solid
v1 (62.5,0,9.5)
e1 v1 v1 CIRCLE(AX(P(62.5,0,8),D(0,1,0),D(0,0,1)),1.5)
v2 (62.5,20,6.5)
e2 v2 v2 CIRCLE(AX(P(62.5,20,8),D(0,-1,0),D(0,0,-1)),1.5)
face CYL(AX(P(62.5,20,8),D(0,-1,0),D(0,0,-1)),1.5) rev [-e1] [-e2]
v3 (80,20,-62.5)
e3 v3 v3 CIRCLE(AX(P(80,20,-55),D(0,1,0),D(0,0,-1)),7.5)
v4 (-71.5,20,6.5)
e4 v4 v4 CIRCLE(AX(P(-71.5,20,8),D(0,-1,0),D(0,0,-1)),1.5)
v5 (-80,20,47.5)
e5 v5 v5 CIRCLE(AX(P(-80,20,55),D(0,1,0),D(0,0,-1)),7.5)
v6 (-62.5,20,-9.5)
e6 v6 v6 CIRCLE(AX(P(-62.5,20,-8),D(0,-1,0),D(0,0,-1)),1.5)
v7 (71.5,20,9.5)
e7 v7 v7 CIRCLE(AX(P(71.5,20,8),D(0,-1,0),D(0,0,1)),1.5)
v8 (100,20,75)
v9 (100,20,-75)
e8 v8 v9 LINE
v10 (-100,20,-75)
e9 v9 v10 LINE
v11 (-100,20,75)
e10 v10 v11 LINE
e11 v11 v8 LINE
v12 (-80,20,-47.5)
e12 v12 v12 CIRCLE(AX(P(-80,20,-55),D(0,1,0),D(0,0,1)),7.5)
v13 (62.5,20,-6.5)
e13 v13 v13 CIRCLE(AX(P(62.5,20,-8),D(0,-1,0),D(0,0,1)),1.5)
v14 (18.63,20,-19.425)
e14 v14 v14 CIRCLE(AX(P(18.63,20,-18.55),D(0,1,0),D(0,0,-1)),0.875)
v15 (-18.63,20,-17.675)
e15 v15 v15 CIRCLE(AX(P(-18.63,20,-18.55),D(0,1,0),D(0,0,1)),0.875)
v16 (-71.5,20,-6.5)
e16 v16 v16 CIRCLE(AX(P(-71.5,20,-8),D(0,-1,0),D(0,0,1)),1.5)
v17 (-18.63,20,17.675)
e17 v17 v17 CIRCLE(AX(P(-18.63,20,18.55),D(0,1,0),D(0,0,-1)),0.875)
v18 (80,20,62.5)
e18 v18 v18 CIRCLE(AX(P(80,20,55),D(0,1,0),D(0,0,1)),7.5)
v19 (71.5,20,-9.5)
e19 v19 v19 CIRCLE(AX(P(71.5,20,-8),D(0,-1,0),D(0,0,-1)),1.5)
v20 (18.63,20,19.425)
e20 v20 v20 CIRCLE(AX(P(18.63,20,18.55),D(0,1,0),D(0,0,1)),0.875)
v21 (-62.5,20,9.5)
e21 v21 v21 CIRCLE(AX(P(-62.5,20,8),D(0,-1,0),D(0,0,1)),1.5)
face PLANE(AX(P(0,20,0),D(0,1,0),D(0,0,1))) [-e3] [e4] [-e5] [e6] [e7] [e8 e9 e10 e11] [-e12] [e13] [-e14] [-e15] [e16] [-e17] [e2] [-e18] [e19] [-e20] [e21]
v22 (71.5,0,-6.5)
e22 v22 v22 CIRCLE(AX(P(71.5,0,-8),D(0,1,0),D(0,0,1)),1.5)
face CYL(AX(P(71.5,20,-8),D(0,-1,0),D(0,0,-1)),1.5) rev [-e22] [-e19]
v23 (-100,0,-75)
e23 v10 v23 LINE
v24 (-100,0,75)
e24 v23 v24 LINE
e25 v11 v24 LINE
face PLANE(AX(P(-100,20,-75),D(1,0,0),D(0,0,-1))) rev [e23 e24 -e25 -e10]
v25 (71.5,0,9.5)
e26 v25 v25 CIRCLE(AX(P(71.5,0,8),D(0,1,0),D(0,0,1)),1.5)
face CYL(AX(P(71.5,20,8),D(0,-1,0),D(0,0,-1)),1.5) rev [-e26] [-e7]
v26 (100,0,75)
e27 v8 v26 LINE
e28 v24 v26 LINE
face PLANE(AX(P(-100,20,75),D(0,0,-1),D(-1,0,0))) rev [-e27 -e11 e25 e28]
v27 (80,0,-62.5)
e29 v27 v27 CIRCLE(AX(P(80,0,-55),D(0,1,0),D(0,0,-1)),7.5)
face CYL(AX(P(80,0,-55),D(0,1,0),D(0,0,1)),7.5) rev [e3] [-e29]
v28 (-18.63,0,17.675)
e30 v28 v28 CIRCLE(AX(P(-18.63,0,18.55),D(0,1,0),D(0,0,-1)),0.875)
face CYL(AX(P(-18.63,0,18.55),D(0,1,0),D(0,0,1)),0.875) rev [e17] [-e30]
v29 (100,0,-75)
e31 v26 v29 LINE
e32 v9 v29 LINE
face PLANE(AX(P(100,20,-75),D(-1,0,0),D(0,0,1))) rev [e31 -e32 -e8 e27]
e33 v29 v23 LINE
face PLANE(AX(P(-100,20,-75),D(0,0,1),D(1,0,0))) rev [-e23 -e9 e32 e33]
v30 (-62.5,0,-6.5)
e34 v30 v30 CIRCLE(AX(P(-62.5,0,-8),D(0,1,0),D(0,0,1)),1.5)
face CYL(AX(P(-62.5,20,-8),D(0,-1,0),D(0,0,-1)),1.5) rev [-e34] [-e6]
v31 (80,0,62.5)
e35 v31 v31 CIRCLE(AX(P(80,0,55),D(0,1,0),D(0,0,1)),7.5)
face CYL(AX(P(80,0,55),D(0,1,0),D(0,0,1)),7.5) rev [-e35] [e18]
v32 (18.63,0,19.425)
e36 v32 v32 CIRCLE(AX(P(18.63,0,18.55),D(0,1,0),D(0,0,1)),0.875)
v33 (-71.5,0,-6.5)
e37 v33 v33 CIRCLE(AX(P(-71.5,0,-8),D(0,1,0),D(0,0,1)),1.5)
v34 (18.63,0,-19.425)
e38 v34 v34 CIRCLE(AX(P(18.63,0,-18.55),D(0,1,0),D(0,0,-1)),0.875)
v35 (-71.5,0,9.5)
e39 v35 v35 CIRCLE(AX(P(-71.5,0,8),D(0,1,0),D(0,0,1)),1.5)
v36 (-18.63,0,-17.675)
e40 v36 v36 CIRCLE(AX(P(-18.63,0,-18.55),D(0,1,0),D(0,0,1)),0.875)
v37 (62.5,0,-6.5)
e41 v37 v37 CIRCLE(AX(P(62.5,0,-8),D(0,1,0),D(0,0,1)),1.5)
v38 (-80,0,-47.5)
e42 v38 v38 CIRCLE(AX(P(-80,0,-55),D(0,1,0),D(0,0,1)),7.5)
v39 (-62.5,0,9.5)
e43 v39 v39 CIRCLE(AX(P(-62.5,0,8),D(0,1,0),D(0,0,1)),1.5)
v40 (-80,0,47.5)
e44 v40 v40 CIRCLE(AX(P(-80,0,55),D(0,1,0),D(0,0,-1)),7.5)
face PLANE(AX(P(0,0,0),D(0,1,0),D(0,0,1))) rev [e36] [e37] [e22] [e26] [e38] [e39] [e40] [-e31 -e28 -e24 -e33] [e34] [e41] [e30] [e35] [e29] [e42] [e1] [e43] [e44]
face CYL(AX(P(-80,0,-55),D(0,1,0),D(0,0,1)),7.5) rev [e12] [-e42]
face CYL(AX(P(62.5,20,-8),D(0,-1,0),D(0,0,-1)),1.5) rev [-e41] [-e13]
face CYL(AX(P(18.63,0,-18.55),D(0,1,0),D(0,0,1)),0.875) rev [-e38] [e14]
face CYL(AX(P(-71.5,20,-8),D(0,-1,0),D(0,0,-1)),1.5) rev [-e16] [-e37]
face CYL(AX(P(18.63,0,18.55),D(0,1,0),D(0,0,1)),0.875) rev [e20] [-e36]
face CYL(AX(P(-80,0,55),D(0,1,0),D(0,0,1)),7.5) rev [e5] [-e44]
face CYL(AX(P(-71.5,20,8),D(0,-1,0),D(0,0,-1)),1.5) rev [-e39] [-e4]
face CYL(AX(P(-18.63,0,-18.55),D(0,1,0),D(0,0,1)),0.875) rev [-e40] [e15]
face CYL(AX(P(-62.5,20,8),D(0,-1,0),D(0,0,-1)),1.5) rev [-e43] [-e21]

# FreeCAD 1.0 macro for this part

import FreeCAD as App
import Part
import Sketcher

V = App.Vector


def add_polygon(sketch, points):
    """Adds a closed chain of lines whose ends are joined by coincident constraints."""
    first, n = sketch.GeometryCount, len(points)
    for a, b in zip(points, points[1:] + points[:1]):
        sketch.addGeometry(Part.LineSegment(App.Vector(*a, 0), App.Vector(*b, 0)), False)
    for i in range(n):
        sketch.addConstraint(Sketcher.Constraint("Coincident", first + i, 2, first + (i + 1) % n, 1))

doc = App.newDocument("Part")
body = doc.addObject("PartDesign::Body", "Body")

sketch1 = body.newObject("Sketcher::SketchObject", "Sketch")
sketch1.AttachmentSupport = (doc.getObject("XZ_Plane"), [""])
sketch1.MapMode = "FlatFace"
add_polygon(sketch1, [(-100, -75), (-100, 75), (100, 75), (100, -75)])
sketch1.addConstraint([
    Sketcher.Constraint("Vertical", 0),
    Sketcher.Constraint("Horizontal", 1),
    Sketcher.Constraint("Vertical", 2),
    Sketcher.Constraint("Horizontal", 3),
    Sketcher.Constraint("Symmetric", 0, 2, 2, 2, -1, 1),
    Sketcher.Constraint("DistanceX", 1, 1, 1, 2, 200.0),
    Sketcher.Constraint("DistanceY", 0, 1, 0, 2, 150.0),
])
pad1 = body.newObject("PartDesign::Pad", "Pad")
pad1.Profile = sketch1
pad1.Length = 20
pad1.Reversed = True

sketch2 = body.newObject("Sketcher::SketchObject", "Sketch001")
sketch2.AttachmentSupport = (doc.getObject("XZ_Plane"), [""])
sketch2.MapMode = "FlatFace"
sketch2.AttachmentOffset = App.Placement(V(0, 0, -20), App.Rotation())
sketch2.addGeometry([
    Part.Circle(V(-80, -55, 0), V(0, 0, 1), 8),
    Part.Circle(V(80, -55, 0), V(0, 0, 1), 8),
    Part.Circle(V(-80, 55, 0), V(0, 0, 1), 8),
    Part.Circle(V(80, 55, 0), V(0, 0, 1), 8),
], False)
sketch2.addConstraint([
    Sketcher.Constraint("Equal", 0, 1),
    Sketcher.Constraint("Equal", 1, 2),
    Sketcher.Constraint("Equal", 2, 3),
    Sketcher.Constraint("Symmetric", 1, 3, 2, 3, -1, 1),
    Sketcher.Constraint("Symmetric", 0, 3, 3, 3, -1, 1),
    Sketcher.Constraint("Symmetric", 0, 3, 1, 3, -2),
    Sketcher.Constraint("Diameter", 0, 15.0),
    Sketcher.Constraint("DistanceX", 0, 3, -1, 1, 80.0),
    Sketcher.Constraint("DistanceY", 0, 3, -1, 1, 55.0),
])
pocket1 = body.newObject("PartDesign::Pocket", "Pocket")
pocket1.Profile = sketch2
pocket1.Type = "ThroughAll"
pocket1.Reversed = True

sketch3 = body.newObject("Sketcher::SketchObject", "Sketch002")
sketch3.AttachmentSupport = (doc.getObject("XZ_Plane"), [""])
sketch3.MapMode = "FlatFace"
sketch3.addGeometry([
    Part.Circle(V(-71.5, 8, 0), V(0, 0, 1), 1.5),
    Part.Circle(V(-62.5, 8, 0), V(0, 0, 1), 1.5),
    Part.Circle(V(-62.5, -8, 0), V(0, 0, 1), 1.5),
    Part.Circle(V(-71.5, -8, 0), V(0, 0, 1), 1.5),
    Part.Circle(V(62.5, -8, 0), V(0, 0, 1), 1.5),
    Part.Circle(V(71.5, -8, 0), V(0, 0, 1), 1.5),
    Part.Circle(V(62.5, 8, 0), V(0, 0, 1), 1.5),
    Part.Circle(V(71.5, 8, 0), V(0, 0, 1), 1.5),
], False)
sketch3.addConstraint([
    Sketcher.Constraint("Equal", 0, 1),
    Sketcher.Constraint("Equal", 1, 2),
    Sketcher.Constraint("Equal", 2, 3),
    Sketcher.Constraint("Equal", 3, 4),
    Sketcher.Constraint("Equal", 4, 5),
    Sketcher.Constraint("Equal", 5, 6),
    Sketcher.Constraint("Equal", 6, 7),
    Sketcher.Constraint("Symmetric", 1, 3, 4, 3, -1, 1),
    Sketcher.Constraint("Symmetric", 0, 3, 5, 3, -1, 1),
    Sketcher.Constraint("Symmetric", 2, 3, 6, 3, -1, 1),
    Sketcher.Constraint("Symmetric", 3, 3, 7, 3, -1, 1),
    Sketcher.Constraint("Symmetric", 2, 3, 4, 3, -2),
    Sketcher.Constraint("Symmetric", 3, 3, 5, 3, -2),
    Sketcher.Constraint("Horizontal", 0, 3, 1, 3),
    Sketcher.Constraint("Diameter", 0, 3.0),
    Sketcher.Constraint("DistanceY", -1, 1, 0, 3, 8.0),
    Sketcher.Constraint("DistanceX", 0, 3, 1, 3, 9.0),
    Sketcher.Constraint("DistanceX", 2, 3, 4, 3, 125.0),
])
pocket2 = body.newObject("PartDesign::Pocket", "Pocket001")
pocket2.Profile = sketch3
pocket2.Type = "ThroughAll"
pocket2.Midplane = True

sketch4 = body.newObject("Sketcher::SketchObject", "Sketch003")
sketch4.AttachmentSupport = (doc.getObject("XZ_Plane"), [""])
sketch4.MapMode = "FlatFace"
sketch4.AttachmentOffset = App.Placement(V(0, 0, -20), App.Rotation())
sketch4.addGeometry([
    Part.Circle(V(-18.6, -18.6, 0), V(0, 0, 1), 0.9),
    Part.Circle(V(18.6, -18.6, 0), V(0, 0, 1), 0.9),
    Part.Circle(V(-18.6, 18.6, 0), V(0, 0, 1), 0.9),
    Part.Circle(V(18.6, 18.6, 0), V(0, 0, 1), 0.9),
], False)
sketch4.addConstraint([
    Sketcher.Constraint("Equal", 0, 1),
    Sketcher.Constraint("Equal", 1, 2),
    Sketcher.Constraint("Equal", 2, 3),
    Sketcher.Constraint("Symmetric", 1, 3, 2, 3, -1, 1),
    Sketcher.Constraint("Symmetric", 0, 3, 3, 3, -1, 1),
    Sketcher.Constraint("Symmetric", 0, 3, 1, 3, -2),
    Sketcher.Constraint("Diameter", 0, 1.75),
    Sketcher.Constraint("DistanceY", 0, 3, 2, 3, 37.1),
    Sketcher.Constraint("DistanceX", 0, 3, -1, 1, 18.63),
])
pocket3 = body.newObject("PartDesign::Pocket", "Pocket002")
pocket3.Profile = sketch4
pocket3.Type = "ThroughAll"
pocket3.Reversed = True

doc.recompute()
